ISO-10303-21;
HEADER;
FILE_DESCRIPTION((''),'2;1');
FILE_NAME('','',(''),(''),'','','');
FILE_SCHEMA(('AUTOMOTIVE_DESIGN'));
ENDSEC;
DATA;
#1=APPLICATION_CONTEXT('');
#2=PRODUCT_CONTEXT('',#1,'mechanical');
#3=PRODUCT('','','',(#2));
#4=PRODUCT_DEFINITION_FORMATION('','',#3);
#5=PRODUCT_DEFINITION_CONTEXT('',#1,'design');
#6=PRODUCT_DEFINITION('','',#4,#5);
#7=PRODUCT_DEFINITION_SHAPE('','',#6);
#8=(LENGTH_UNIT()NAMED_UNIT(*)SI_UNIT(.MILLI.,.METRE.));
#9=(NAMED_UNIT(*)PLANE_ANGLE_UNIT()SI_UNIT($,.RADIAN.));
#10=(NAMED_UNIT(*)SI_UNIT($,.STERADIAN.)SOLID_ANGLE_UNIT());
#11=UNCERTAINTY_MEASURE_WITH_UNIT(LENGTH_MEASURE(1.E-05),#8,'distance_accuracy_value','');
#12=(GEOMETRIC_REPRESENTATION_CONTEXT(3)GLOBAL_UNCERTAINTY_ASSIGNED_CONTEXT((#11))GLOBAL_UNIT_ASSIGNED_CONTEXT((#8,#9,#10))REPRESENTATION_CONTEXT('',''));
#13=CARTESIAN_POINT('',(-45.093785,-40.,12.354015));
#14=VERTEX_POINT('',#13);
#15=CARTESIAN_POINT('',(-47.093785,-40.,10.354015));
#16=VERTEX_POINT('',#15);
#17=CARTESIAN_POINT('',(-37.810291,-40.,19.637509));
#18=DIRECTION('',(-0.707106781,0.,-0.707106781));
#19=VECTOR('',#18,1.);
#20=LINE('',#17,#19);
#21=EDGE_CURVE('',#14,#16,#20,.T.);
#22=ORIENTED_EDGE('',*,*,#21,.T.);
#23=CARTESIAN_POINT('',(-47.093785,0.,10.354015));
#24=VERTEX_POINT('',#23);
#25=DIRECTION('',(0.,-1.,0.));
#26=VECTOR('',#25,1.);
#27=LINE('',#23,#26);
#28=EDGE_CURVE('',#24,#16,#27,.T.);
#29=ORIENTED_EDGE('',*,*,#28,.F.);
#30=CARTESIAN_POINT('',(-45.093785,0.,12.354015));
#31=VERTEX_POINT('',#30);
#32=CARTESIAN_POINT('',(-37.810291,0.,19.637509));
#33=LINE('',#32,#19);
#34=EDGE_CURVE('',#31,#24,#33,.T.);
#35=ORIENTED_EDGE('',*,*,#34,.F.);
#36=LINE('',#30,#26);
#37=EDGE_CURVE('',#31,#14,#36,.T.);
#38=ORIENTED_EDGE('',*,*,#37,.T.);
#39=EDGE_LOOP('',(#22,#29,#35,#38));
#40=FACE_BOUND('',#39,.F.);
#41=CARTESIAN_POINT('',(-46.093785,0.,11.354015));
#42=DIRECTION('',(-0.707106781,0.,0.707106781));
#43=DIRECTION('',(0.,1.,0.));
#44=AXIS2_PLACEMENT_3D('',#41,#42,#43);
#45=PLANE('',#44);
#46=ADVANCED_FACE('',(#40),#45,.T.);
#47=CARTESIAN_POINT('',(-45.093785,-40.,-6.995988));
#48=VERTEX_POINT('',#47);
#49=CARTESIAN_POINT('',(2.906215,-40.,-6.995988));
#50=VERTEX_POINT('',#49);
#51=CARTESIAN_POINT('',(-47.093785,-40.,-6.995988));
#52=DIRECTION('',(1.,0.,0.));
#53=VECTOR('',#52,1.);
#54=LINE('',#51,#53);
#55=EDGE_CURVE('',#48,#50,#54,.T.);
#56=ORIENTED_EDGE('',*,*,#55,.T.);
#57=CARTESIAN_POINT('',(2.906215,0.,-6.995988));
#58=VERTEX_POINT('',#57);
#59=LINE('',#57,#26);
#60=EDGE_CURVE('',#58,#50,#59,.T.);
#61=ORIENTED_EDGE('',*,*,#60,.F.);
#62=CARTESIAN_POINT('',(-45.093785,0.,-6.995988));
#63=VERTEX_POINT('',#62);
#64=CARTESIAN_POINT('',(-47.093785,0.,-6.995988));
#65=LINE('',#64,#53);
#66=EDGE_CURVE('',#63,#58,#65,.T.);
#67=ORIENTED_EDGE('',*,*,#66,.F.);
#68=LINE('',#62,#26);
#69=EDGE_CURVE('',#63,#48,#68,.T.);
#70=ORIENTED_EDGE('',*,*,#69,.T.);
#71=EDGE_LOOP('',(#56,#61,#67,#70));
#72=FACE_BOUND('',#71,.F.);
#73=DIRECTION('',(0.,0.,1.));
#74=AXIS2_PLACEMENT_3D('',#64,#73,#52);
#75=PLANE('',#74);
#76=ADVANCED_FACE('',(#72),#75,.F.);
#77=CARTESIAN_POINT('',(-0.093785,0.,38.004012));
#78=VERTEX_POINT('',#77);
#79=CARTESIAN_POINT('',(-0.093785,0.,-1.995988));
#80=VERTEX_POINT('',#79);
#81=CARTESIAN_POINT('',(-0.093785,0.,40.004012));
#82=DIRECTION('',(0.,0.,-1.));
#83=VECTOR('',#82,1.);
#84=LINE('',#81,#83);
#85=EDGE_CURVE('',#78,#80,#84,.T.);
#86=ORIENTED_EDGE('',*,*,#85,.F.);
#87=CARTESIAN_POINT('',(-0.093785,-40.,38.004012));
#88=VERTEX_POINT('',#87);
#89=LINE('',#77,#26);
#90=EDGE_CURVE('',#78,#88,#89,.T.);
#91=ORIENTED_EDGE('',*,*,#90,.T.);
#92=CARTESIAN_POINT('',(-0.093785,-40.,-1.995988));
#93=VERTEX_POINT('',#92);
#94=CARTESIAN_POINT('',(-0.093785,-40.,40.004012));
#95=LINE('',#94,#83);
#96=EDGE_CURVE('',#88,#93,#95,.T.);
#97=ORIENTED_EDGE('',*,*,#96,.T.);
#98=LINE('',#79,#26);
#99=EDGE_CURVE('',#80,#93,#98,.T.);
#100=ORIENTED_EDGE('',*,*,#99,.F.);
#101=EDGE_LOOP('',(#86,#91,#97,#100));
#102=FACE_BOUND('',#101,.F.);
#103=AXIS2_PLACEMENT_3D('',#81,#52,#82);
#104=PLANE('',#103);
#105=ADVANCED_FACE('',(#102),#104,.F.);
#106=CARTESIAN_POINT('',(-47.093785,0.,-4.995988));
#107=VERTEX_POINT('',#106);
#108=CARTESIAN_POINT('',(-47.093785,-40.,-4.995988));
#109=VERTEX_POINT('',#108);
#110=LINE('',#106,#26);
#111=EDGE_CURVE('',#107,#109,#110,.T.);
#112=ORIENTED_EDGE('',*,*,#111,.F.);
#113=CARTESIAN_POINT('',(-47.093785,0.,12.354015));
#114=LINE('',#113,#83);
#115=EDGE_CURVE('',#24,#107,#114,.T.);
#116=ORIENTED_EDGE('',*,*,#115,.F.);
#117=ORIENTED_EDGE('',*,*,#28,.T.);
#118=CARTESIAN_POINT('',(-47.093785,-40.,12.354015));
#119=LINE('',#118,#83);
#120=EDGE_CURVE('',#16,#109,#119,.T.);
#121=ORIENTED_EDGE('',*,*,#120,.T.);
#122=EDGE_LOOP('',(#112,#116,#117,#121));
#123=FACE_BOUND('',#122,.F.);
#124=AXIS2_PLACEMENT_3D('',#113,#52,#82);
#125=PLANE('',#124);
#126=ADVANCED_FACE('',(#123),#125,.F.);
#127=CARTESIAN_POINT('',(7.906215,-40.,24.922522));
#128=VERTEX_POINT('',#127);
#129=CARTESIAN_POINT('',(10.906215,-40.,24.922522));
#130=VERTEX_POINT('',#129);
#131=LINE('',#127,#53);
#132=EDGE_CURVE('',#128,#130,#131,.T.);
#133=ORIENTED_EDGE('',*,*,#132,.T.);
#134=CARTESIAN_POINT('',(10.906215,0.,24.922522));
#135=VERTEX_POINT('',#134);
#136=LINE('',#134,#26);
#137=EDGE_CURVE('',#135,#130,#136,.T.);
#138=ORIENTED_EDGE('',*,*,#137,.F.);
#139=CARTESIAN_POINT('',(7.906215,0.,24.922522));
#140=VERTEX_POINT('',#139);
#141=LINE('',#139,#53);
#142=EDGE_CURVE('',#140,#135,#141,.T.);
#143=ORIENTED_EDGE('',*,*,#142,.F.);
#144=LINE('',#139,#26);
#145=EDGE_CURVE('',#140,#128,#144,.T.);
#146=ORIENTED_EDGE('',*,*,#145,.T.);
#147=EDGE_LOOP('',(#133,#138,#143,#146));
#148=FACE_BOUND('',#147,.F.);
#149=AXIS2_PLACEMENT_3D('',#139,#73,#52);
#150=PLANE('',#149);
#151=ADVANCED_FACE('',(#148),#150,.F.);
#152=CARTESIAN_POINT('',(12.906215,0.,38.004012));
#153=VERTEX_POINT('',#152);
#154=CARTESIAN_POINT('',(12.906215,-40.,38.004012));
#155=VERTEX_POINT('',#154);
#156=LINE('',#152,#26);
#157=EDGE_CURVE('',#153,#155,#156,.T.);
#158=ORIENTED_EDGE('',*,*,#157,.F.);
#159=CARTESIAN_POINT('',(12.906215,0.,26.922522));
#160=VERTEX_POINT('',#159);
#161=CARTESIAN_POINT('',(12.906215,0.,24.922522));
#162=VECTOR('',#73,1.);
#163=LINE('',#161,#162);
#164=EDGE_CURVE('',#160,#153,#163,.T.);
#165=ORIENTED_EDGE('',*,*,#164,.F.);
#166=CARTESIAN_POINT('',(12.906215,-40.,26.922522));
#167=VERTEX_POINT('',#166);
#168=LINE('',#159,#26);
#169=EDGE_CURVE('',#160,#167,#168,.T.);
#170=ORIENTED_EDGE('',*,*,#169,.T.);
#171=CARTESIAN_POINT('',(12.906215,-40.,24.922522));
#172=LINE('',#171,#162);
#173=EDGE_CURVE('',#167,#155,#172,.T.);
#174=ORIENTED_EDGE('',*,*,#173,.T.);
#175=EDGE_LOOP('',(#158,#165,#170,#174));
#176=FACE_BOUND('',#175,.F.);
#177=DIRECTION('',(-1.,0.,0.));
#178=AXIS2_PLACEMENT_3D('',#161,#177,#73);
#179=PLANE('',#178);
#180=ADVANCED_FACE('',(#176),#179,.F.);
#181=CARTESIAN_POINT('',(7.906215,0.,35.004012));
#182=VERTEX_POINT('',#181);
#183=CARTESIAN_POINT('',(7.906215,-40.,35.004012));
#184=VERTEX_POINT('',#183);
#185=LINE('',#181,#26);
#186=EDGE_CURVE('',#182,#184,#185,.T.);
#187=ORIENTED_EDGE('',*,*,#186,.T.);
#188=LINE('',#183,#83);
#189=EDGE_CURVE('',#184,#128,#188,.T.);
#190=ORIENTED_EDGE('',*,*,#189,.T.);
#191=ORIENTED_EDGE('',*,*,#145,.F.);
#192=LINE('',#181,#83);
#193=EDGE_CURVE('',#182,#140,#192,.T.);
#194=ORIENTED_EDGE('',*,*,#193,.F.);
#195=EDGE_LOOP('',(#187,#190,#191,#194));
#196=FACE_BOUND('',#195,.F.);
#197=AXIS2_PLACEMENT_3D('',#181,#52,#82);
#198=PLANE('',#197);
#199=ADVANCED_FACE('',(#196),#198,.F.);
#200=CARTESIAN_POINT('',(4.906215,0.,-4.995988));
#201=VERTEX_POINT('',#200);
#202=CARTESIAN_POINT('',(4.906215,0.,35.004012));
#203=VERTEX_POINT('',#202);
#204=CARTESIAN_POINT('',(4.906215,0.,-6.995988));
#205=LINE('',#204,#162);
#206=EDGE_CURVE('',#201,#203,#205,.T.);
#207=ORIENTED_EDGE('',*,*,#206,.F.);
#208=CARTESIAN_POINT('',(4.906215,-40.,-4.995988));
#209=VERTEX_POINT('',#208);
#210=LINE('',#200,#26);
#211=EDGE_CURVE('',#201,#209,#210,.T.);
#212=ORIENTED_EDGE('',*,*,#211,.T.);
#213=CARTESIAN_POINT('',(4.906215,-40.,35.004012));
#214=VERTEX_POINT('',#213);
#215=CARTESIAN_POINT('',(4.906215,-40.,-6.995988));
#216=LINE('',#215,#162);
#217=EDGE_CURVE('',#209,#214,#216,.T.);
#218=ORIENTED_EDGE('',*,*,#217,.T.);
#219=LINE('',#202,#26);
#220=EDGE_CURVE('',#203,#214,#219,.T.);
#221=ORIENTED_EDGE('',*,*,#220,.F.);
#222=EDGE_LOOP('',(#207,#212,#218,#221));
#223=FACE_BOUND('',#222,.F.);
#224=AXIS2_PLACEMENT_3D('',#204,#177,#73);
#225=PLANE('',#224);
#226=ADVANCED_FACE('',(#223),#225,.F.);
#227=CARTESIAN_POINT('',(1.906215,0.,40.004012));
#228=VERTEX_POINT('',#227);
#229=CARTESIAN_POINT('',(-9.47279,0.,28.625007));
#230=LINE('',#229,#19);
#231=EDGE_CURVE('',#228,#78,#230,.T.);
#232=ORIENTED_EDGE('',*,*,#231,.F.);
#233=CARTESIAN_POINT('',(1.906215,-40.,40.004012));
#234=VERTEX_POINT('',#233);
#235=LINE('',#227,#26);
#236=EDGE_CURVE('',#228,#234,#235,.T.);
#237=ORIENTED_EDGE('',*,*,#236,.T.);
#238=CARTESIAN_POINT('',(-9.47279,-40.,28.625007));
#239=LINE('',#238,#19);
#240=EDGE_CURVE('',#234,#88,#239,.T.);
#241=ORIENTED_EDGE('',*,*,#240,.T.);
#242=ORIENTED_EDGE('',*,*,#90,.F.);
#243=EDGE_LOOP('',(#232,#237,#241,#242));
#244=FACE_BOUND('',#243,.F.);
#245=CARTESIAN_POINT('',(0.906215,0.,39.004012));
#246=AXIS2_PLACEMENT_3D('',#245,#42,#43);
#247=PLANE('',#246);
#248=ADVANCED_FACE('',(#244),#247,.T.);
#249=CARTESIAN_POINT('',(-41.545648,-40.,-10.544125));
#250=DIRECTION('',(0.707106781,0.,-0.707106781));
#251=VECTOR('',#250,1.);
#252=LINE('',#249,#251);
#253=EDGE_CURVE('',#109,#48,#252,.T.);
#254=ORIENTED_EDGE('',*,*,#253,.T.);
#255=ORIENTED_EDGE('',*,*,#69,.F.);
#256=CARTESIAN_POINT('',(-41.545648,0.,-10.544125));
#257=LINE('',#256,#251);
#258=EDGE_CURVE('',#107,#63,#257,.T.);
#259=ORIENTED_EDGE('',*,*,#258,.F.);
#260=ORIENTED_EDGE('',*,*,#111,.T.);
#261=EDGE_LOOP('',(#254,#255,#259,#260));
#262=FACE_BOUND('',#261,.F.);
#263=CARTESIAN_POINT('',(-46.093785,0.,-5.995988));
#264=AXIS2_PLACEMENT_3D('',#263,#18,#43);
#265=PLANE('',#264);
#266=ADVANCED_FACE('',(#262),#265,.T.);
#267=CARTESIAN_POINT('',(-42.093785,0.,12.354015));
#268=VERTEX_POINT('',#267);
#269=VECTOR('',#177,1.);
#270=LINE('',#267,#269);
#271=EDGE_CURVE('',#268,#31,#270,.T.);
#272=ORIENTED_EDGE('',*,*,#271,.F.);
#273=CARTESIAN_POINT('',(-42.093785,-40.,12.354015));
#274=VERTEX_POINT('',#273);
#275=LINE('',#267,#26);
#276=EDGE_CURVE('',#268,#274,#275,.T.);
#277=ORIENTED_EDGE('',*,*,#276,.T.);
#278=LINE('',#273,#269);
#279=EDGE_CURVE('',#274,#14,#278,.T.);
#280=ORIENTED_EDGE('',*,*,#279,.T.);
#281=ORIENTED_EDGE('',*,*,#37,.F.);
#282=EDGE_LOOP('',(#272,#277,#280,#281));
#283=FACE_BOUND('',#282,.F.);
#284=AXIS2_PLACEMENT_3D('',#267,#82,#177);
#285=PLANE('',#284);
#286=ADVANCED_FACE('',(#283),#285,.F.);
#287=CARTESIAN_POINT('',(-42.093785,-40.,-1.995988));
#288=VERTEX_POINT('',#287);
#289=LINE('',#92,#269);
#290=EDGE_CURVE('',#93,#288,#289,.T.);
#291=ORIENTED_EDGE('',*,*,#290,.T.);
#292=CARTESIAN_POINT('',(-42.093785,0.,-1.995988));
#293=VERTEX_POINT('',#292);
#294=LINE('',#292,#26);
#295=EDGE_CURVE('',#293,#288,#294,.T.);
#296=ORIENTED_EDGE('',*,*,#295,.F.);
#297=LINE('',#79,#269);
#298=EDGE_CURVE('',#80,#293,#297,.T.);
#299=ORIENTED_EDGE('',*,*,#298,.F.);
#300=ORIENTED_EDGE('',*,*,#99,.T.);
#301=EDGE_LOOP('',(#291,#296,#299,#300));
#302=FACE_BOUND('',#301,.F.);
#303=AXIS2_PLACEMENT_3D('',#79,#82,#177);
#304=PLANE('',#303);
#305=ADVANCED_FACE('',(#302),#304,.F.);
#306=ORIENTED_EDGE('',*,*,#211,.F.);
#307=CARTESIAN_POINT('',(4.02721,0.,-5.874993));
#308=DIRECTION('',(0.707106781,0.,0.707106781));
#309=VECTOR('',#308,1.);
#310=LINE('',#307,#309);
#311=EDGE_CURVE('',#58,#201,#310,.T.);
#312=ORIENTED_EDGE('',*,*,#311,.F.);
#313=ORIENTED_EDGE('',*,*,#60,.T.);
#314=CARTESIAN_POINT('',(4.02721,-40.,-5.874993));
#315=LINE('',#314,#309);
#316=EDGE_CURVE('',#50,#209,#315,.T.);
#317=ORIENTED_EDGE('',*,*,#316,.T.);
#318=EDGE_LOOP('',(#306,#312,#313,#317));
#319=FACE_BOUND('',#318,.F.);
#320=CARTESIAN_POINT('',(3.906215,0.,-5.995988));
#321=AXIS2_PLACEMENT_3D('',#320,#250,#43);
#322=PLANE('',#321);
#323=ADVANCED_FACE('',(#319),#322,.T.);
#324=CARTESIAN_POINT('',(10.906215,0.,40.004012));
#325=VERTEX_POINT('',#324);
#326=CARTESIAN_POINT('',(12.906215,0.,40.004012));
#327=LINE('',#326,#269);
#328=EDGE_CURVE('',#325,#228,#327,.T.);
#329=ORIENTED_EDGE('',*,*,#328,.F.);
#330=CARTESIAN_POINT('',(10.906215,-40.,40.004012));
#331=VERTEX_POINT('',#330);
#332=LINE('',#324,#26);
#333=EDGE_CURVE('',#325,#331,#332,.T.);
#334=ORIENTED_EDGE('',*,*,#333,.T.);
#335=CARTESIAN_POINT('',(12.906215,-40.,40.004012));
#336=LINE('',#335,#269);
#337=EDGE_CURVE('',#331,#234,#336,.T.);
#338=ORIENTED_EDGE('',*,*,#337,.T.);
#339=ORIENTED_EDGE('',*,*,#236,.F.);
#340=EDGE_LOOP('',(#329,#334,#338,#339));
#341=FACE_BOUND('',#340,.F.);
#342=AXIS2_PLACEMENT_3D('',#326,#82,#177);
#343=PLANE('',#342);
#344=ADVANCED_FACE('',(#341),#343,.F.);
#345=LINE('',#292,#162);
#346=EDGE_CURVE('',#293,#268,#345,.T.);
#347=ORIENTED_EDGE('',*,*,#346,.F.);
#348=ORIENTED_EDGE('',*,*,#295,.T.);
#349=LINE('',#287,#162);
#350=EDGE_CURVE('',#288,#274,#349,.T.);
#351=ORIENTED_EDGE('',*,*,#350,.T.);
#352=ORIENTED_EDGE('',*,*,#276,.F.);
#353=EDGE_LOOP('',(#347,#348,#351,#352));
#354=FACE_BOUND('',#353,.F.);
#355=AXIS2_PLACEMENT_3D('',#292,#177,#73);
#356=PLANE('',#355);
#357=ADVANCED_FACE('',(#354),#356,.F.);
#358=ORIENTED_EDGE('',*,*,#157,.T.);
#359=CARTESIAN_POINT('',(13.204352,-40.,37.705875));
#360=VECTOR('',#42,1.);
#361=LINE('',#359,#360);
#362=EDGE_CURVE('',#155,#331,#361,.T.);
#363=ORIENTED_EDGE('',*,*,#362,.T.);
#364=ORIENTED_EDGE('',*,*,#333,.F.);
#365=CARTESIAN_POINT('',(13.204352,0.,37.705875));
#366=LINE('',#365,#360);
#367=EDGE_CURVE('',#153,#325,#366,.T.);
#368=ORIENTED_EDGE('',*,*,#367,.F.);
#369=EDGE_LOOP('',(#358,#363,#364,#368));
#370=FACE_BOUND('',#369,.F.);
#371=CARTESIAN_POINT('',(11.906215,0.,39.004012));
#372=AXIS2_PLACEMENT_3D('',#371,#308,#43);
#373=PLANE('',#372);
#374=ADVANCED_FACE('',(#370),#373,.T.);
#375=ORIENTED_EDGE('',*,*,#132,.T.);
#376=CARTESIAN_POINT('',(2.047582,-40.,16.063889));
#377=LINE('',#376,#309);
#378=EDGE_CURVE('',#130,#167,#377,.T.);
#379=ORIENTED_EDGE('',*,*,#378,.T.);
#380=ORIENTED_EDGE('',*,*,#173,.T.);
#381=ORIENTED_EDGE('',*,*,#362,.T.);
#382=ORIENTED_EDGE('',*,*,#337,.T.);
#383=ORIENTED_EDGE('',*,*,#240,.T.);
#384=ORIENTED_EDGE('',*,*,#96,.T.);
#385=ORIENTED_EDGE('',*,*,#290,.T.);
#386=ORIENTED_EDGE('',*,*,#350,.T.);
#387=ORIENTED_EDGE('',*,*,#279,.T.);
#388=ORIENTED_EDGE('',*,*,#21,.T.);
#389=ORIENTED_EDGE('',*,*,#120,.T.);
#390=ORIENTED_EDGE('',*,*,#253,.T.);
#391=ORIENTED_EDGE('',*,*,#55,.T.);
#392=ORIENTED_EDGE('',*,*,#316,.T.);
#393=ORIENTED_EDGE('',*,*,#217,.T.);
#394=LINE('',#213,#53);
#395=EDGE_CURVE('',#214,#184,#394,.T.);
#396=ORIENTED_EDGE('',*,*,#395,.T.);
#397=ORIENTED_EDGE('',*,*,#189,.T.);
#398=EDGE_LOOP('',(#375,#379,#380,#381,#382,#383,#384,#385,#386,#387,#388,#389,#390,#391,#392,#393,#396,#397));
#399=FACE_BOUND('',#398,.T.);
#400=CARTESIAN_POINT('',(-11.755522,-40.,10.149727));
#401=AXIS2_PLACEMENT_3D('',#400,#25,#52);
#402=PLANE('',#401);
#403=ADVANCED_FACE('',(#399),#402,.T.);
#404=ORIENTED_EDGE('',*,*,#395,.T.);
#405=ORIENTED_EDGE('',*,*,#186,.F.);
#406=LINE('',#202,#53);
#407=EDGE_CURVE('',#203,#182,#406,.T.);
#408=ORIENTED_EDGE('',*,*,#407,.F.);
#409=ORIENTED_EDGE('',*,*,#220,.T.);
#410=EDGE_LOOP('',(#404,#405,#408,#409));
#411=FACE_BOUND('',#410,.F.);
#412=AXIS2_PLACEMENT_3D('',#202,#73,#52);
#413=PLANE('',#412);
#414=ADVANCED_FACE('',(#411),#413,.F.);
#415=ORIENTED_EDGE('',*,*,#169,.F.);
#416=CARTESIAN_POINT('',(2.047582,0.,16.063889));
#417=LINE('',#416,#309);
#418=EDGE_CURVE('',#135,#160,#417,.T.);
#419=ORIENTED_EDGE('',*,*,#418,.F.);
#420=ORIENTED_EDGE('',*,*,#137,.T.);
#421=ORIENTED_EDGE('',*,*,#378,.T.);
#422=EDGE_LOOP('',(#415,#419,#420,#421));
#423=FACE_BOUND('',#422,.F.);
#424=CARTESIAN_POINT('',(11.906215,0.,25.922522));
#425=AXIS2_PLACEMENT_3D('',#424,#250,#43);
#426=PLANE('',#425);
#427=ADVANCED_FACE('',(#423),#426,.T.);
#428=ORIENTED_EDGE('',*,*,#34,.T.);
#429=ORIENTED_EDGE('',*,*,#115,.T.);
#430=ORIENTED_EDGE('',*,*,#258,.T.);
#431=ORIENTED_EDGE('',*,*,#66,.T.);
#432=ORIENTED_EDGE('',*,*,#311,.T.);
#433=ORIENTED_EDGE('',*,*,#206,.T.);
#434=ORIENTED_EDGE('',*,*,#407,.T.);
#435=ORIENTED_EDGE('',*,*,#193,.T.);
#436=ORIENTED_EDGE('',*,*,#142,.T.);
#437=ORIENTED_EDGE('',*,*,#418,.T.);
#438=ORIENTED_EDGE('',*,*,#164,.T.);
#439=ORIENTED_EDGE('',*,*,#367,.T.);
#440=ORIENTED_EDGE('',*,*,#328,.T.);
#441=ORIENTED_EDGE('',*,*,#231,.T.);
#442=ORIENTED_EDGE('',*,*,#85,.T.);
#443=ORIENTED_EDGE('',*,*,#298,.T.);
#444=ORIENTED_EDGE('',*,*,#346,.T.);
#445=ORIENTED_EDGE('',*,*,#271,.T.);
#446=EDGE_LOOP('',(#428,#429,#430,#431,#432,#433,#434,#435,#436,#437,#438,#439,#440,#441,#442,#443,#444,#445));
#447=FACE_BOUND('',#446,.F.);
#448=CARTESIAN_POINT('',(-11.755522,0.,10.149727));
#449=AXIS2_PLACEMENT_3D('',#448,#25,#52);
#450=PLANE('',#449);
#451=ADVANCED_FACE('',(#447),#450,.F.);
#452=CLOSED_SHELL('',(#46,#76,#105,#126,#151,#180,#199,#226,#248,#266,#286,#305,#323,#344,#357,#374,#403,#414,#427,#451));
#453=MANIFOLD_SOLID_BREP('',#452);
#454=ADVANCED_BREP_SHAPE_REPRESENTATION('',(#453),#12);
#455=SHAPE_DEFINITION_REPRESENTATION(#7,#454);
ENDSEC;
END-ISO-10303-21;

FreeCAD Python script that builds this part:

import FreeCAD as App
import Part
import Sketcher

V = App.Vector


def edges_at(feature, points):
    """Names of the edges that pass closest to the given points."""
    edges = feature.Shape.Edges
    near = lambda p: min(range(len(edges)), key=lambda i: edges[i].distToShape(Part.Vertex(*p))[0])
    return sorted({f"Edge{near(p) + 1}" for p in points})

doc = App.newDocument("Part")
params = doc.addObject("Spreadsheet::Sheet", "Params")
for row, (alias, value) in enumerate([
    ("sketch1_width", "5 mm"),
    ("sketch1_width2", "13 mm"),
    ("sketch1_width3", "42 mm"),
    ("sketch1_width4", "52 mm"),
    ("pad1_length", "40 mm"),
    ("chamfer_size", "2 mm"),
], start=1):
    params.set(f"A{row}", alias)
    params.set(f"B{row}", "=" + value)
    params.setAlias(f"B{row}", alias)

body = doc.addObject("PartDesign::Body", "Body")

# Sketch on XZ plane
sketch1 = body.newObject("Sketcher::SketchObject", "Sketch")
sketch1.AttachmentSupport = (doc.getObject("XZ_Plane"), [""])
sketch1.MapMode = "FlatFace"
sketch1.addGeometry([
    Part.LineSegment(V(7.9, 35, 0), V(7.9, 24.9, 0)),  # 0
    Part.LineSegment(V(7.9, 24.9, 0), V(12.9, 24.9, 0)),  # 1
    Part.LineSegment(V(12.9, 24.9, 0), V(12.9, 40, 0)),  # 2
    Part.LineSegment(V(12.9, 40, 0), V(-0.1, 40, 0)),  # 3
    Part.LineSegment(V(-0.1, 40, 0), V(-0.1, -2, 0)),  # 4
    Part.LineSegment(V(-0.1, -2, 0), V(-42.1, -2, 0)),  # 5
    Part.LineSegment(V(-42.1, -2, 0), V(-42.1, 12.4, 0)),  # 6
    Part.LineSegment(V(-42.1, 12.4, 0), V(-47.1, 12.4, 0)),  # 7
    Part.LineSegment(V(-47.1, 12.4, 0), V(-47.1, -7, 0)),  # 8
    Part.LineSegment(V(-47.1, -7, 0), V(4.9, -7, 0)),  # 9
    Part.LineSegment(V(4.9, -7, 0), V(4.9, 35, 0)),  # 10
    Part.LineSegment(V(4.9, 35, 0), V(7.9, 35, 0)),  # 11
], False)
sketch1.addConstraint([
    Sketcher.Constraint("Coincident", 0, 2, 1, 1),
    Sketcher.Constraint("Coincident", 1, 2, 2, 1),
    Sketcher.Constraint("Coincident", 2, 2, 3, 1),
    Sketcher.Constraint("Coincident", 3, 2, 4, 1),
    Sketcher.Constraint("Coincident", 4, 2, 5, 1),
    Sketcher.Constraint("Coincident", 5, 2, 6, 1),
    Sketcher.Constraint("Coincident", 6, 2, 7, 1),
    Sketcher.Constraint("Coincident", 7, 2, 8, 1),
    Sketcher.Constraint("Coincident", 8, 2, 9, 1),
    Sketcher.Constraint("Coincident", 9, 2, 10, 1),
    Sketcher.Constraint("Coincident", 10, 2, 11, 1),
    Sketcher.Constraint("Coincident", 11, 2, 0, 1),
    Sketcher.Constraint("Vertical", 0),
    Sketcher.Constraint("Horizontal", 1),
    Sketcher.Constraint("Vertical", 2),
    Sketcher.Constraint("Horizontal", 3),
    Sketcher.Constraint("Vertical", 4),
    Sketcher.Constraint("Horizontal", 5),
    Sketcher.Constraint("Vertical", 6),
    Sketcher.Constraint("Horizontal", 7),
    Sketcher.Constraint("Vertical", 8),
    Sketcher.Constraint("Horizontal", 9),
    Sketcher.Constraint("Vertical", 10),
    Sketcher.Constraint("Horizontal", 11),
    Sketcher.Constraint("Equal", 1, 7),
    Sketcher.Constraint("Equal", 5, 4),
    Sketcher.Constraint("Equal", 4, 10),
    Sketcher.Constraint("DistanceX", 1, 1, 1, 2, 5.0),
    Sketcher.Constraint("DistanceX", 3, 2, 3, 1, 13.0),
    Sketcher.Constraint("DistanceX", 5, 2, 5, 1, 42.0),
    Sketcher.Constraint("DistanceX", 9, 1, 9, 2, 52.0),
    Sketcher.Constraint("DistanceY", 8, 2, 5, 2, 5.0),
    Sketcher.Constraint("DistanceY", 0, 2, 0, 1, 10.08149),
    Sketcher.Constraint("DistanceY", 6, 1, 6, 2, 14.350003),
    Sketcher.Constraint("DistanceY", 4, 2, -1, 1, 1.995988),
    Sketcher.Constraint("DistanceX", -1, 1, 0, 2, 7.906215),
])
sketch1.setExpression("Constraints[27]", "Params.sketch1_width")
sketch1.setExpression("Constraints[28]", "Params.sketch1_width2")
sketch1.setExpression("Constraints[29]", "Params.sketch1_width3")
sketch1.setExpression("Constraints[30]", "Params.sketch1_width4")
pad1 = body.newObject("PartDesign::Pad", "Pad")
pad1.Profile = sketch1
pad1.setExpression("Length", "Params.pad1_length")
doc.recompute()

chamfer = body.newObject("PartDesign::Chamfer", "Chamfer")
chamfer.Base = (pad1, edges_at(pad1, [
    (-0.094, -20, 40.004),
    (12.906, -20, 40.004),
    (-47.094, -20, 12.354),
    (-47.094, -20, -6.996),
    (4.906, -20, -6.996),
    (12.906, -20, 24.923),
]))
chamfer.setExpression("Size", "Params.chamfer_size")

doc.recompute()
